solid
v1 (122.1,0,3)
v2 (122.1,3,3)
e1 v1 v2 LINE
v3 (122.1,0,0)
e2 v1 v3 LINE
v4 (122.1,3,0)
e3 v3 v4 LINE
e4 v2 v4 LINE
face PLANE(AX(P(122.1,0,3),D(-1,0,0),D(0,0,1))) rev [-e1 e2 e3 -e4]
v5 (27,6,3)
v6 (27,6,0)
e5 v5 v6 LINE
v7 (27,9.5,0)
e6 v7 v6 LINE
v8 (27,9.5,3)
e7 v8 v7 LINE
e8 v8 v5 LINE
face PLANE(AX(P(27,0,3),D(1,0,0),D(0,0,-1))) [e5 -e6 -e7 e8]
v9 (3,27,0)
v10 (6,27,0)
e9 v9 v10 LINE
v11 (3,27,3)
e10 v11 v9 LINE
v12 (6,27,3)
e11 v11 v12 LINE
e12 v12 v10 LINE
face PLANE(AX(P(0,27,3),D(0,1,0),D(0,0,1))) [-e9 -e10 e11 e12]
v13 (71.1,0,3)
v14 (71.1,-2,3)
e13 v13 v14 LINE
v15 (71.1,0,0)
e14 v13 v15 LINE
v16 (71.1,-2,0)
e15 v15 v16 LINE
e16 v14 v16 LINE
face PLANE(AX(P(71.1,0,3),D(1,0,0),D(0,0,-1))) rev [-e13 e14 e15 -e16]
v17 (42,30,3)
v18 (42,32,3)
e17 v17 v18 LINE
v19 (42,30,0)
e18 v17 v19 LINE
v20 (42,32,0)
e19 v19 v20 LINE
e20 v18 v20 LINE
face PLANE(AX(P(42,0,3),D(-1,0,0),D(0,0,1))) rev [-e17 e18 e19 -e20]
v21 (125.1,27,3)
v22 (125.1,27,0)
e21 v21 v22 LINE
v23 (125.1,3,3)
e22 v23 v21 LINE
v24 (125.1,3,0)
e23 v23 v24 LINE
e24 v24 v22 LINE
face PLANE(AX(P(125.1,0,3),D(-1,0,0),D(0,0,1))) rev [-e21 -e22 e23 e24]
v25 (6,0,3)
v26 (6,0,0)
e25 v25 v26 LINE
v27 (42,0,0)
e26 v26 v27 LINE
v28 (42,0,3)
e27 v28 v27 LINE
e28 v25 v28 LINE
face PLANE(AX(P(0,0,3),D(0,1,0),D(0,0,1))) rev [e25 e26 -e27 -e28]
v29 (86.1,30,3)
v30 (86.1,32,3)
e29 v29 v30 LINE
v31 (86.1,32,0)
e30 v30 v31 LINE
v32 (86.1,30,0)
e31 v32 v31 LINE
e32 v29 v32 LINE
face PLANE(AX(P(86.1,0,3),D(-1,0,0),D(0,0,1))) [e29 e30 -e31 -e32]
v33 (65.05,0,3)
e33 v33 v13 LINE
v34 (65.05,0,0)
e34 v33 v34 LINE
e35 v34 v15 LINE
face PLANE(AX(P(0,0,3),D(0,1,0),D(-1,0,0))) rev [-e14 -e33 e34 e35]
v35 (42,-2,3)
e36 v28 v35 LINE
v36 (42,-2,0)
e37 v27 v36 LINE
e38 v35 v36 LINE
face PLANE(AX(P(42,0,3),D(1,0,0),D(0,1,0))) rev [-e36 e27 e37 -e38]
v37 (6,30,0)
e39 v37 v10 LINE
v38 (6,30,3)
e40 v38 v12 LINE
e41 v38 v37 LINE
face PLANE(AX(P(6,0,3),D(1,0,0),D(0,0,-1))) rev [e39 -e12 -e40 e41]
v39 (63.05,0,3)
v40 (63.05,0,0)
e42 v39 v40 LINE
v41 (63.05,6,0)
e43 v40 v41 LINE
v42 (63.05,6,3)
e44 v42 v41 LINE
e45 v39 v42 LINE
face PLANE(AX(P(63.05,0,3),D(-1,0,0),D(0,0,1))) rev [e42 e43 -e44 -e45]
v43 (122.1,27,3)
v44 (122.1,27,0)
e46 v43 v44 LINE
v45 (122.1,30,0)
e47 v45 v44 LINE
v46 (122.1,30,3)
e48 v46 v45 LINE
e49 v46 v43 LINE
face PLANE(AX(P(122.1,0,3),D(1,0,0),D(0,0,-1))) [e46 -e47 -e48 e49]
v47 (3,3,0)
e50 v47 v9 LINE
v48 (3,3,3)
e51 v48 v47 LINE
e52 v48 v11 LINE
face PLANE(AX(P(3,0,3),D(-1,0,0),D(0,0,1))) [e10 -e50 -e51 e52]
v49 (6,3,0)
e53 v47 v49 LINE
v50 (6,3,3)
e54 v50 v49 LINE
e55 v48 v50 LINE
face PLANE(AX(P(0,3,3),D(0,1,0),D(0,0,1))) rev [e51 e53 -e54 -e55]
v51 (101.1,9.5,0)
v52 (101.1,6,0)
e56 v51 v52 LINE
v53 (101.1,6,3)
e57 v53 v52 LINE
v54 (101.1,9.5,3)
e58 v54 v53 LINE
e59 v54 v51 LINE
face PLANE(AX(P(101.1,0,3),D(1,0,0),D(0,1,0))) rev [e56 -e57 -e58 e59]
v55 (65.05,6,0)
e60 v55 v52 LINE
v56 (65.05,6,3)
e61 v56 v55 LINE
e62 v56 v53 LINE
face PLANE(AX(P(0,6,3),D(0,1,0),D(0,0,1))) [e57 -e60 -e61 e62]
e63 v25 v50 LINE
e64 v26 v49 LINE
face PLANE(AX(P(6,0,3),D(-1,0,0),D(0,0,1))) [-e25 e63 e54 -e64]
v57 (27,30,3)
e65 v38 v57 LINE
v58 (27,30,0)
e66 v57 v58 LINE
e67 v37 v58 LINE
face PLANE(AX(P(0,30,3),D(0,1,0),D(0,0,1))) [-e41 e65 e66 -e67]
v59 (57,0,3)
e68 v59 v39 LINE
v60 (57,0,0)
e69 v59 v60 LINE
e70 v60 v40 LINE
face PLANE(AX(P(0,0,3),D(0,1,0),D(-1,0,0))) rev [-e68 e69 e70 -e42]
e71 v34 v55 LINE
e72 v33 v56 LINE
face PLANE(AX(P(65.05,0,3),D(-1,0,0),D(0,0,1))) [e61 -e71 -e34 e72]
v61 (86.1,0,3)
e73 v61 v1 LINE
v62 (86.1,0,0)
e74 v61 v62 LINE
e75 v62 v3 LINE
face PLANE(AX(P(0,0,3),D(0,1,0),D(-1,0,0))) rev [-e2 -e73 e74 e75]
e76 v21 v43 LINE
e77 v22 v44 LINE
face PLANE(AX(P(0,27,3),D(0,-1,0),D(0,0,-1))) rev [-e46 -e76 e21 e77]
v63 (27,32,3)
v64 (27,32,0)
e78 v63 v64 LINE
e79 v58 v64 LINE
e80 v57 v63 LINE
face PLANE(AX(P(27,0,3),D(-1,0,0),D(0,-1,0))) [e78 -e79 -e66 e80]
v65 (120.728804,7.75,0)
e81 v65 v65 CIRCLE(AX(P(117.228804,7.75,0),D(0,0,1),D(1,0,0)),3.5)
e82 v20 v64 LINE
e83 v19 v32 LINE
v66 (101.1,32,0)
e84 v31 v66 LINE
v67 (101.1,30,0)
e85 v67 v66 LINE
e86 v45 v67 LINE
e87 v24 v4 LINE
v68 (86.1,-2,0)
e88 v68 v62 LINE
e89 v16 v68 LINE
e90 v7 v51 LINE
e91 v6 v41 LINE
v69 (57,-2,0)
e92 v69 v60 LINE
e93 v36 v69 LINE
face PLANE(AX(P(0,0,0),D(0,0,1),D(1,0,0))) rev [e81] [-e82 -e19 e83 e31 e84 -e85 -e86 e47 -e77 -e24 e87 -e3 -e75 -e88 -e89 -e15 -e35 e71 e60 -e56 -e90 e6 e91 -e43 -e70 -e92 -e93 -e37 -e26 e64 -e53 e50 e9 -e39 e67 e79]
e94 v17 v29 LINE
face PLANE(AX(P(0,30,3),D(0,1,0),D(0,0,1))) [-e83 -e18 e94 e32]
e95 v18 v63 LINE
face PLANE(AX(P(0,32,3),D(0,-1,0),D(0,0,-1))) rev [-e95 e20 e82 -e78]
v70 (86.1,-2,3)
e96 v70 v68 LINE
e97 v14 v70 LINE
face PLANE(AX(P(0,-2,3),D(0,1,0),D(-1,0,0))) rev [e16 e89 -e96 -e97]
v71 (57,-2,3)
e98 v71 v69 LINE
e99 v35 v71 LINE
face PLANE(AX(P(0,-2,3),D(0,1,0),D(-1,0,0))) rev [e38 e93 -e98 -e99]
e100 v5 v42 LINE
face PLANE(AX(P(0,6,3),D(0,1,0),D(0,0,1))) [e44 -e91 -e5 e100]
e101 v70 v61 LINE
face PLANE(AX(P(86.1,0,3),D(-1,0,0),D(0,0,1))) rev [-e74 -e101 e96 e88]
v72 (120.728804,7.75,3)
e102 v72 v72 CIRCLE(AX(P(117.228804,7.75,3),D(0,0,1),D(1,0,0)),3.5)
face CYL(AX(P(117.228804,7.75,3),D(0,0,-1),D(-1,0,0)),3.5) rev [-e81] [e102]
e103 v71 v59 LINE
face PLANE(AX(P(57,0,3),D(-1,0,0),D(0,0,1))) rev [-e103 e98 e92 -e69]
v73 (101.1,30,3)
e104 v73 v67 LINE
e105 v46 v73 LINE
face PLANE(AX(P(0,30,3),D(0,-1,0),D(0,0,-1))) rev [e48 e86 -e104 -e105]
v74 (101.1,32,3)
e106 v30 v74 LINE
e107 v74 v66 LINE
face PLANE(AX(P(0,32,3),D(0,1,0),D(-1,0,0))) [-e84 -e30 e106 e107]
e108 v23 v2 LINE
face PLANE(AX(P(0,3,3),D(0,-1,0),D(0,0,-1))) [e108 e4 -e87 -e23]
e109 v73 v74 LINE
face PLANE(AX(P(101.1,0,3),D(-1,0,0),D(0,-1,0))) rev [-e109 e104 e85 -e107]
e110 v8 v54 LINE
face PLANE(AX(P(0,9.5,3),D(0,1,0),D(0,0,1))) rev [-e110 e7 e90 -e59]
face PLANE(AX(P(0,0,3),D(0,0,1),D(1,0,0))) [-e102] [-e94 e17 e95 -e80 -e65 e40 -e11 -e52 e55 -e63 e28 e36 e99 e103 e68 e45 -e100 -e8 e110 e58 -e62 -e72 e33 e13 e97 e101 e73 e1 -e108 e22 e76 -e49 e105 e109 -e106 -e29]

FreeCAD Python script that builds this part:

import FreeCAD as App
import Part
import Sketcher

V = App.Vector

doc = App.newDocument("Part")
params = doc.addObject("Spreadsheet::Sheet", "Params")
for row, (alias, value) in enumerate([
    ("sketch1_diameter", "7 mm"),
    ("sketch1_width", "36 mm"),
    ("sketch1_width2", "15 mm"),
    ("sketch1_width3", "3 mm"),
    ("sketch1_height", "2 mm"),
    ("pad1_length", "3 mm"),
], start=1):
    params.set(f"A{row}", alias)
    params.set(f"B{row}", "=" + value)
    params.setAlias(f"B{row}", alias)

body = doc.addObject("PartDesign::Body", "Body")

# Sketch on XY plane
sketch1 = body.newObject("Sketcher::SketchObject", "Sketch")
sketch1.AttachmentSupport = (doc.getObject("XY_Plane"), [""])
sketch1.MapMode = "FlatFace"
sketch1.addGeometry([
    Part.LineSegment(V(6, 3, 0), V(6, 0, 0)),  # 0
    Part.LineSegment(V(6, 0, 0), V(42, 0, 0)),  # 1
    Part.LineSegment(V(42, 0, 0), V(42, -2, 0)),  # 2
    Part.LineSegment(V(42, -2, 0), V(57, -2, 0)),  # 3
    Part.LineSegment(V(57, -2, 0), V(57, 0, 0)),  # 4
    Part.LineSegment(V(57, 0, 0), V(63, 0, 0)),  # 5
    Part.LineSegment(V(63, 0, 0), V(63, 6, 0)),  # 6
    Part.LineSegment(V(63, 6, 0), V(27, 6, 0)),  # 7
    Part.LineSegment(V(27, 6, 0), V(27, 9.5, 0)),  # 8
    Part.LineSegment(V(27, 9.5, 0), V(101.1, 9.5, 0)),  # 9
    Part.LineSegment(V(101.1, 9.5, 0), V(101.1, 6, 0)),  # 10
    Part.LineSegment(V(101.1, 6, 0), V(65, 6, 0)),  # 11
    Part.LineSegment(V(65, 6, 0), V(65, 0, 0)),  # 12
    Part.LineSegment(V(65, 0, 0), V(71.1, 0, 0)),  # 13
    Part.LineSegment(V(71.1, 0, 0), V(71.1, -2, 0)),  # 14
    Part.LineSegment(V(71.1, -2, 0), V(86.1, -2, 0)),  # 15
    Part.LineSegment(V(86.1, -2, 0), V(86.1, 0, 0)),  # 16
    Part.LineSegment(V(86.1, 0, 0), V(122.1, 0, 0)),  # 17
    Part.LineSegment(V(122.1, 0, 0), V(122.1, 3, 0)),  # 18
    Part.LineSegment(V(122.1, 3, 0), V(125.1, 3, 0)),  # 19
    Part.LineSegment(V(125.1, 3, 0), V(125.1, 27, 0)),  # 20
    Part.LineSegment(V(125.1, 27, 0), V(122.1, 27, 0)),  # 21
    Part.LineSegment(V(122.1, 27, 0), V(122.1, 30, 0)),  # 22
    Part.LineSegment(V(122.1, 30, 0), V(101.1, 30, 0)),  # 23
    Part.LineSegment(V(101.1, 30, 0), V(101.1, 32, 0)),  # 24
    Part.LineSegment(V(101.1, 32, 0), V(86.1, 32, 0)),  # 25
    Part.LineSegment(V(86.1, 32, 0), V(86.1, 30, 0)),  # 26
    Part.LineSegment(V(86.1, 30, 0), V(42, 30, 0)),  # 27
    Part.LineSegment(V(42, 30, 0), V(42, 32, 0)),  # 28
    Part.LineSegment(V(42, 32, 0), V(27, 32, 0)),  # 29
    Part.LineSegment(V(27, 32, 0), V(27, 30, 0)),  # 30
    Part.LineSegment(V(27, 30, 0), V(6, 30, 0)),  # 31
    Part.LineSegment(V(6, 30, 0), V(6, 27, 0)),  # 32
    Part.LineSegment(V(6, 27, 0), V(3, 27, 0)),  # 33
    Part.LineSegment(V(3, 27, 0), V(3, 3, 0)),  # 34
    Part.LineSegment(V(3, 3, 0), V(6, 3, 0)),  # 35
    Part.Circle(V(117.2, 7.8, 0), V(0, 0, 1), 3.5),  # 36
], False)
sketch1.addConstraint([
    Sketcher.Constraint("Coincident", 0, 2, 1, 1),
    Sketcher.Constraint("Coincident", 1, 2, 2, 1),
    Sketcher.Constraint("Coincident", 2, 2, 3, 1),
    Sketcher.Constraint("Coincident", 3, 2, 4, 1),
    Sketcher.Constraint("Coincident", 4, 2, 5, 1),
    Sketcher.Constraint("Coincident", 5, 2, 6, 1),
    Sketcher.Constraint("Coincident", 6, 2, 7, 1),
    Sketcher.Constraint("Coincident", 7, 2, 8, 1),
    Sketcher.Constraint("Coincident", 8, 2, 9, 1),
    Sketcher.Constraint("Coincident", 9, 2, 10, 1),
    Sketcher.Constraint("Coincident", 10, 2, 11, 1),
    Sketcher.Constraint("Coincident", 11, 2, 12, 1),
    Sketcher.Constraint("Coincident", 12, 2, 13, 1),
    Sketcher.Constraint("Coincident", 13, 2, 14, 1),
    Sketcher.Constraint("Coincident", 14, 2, 15, 1),
    Sketcher.Constraint("Coincident", 15, 2, 16, 1),
    Sketcher.Constraint("Coincident", 16, 2, 17, 1),
    Sketcher.Constraint("Coincident", 17, 2, 18, 1),
    Sketcher.Constraint("Coincident", 18, 2, 19, 1),
    Sketcher.Constraint("Coincident", 19, 2, 20, 1),
    Sketcher.Constraint("Coincident", 20, 2, 21, 1),
    Sketcher.Constraint("Coincident", 21, 2, 22, 1),
    Sketcher.Constraint("Coincident", 22, 2, 23, 1),
    Sketcher.Constraint("Coincident", 23, 2, 24, 1),
    Sketcher.Constraint("Coincident", 24, 2, 25, 1),
    Sketcher.Constraint("Coincident", 25, 2, 26, 1),
    Sketcher.Constraint("Coincident", 26, 2, 27, 1),
    Sketcher.Constraint("Coincident", 27, 2, 28, 1),
    Sketcher.Constraint("Coincident", 28, 2, 29, 1),
    Sketcher.Constraint("Coincident", 29, 2, 30, 1),
    Sketcher.Constraint("Coincident", 30, 2, 31, 1),
    Sketcher.Constraint("Coincident", 31, 2, 32, 1),
    Sketcher.Constraint("Coincident", 32, 2, 33, 1),
    Sketcher.Constraint("Coincident", 33, 2, 34, 1),
    Sketcher.Constraint("Coincident", 34, 2, 35, 1),
    Sketcher.Constraint("Coincident", 35, 2, 0, 1),
    Sketcher.Constraint("Vertical", 0),
    Sketcher.Constraint("Horizontal", 1),
    Sketcher.Constraint("Vertical", 2),
    Sketcher.Constraint("Horizontal", 3),
    Sketcher.Constraint("Vertical", 4),
    Sketcher.Constraint("Horizontal", 5),
    Sketcher.Constraint("Vertical", 6),
    Sketcher.Constraint("Horizontal", 7),
    Sketcher.Constraint("Vertical", 8),
    Sketcher.Constraint("Horizontal", 9),
    Sketcher.Constraint("Vertical", 10),
    Sketcher.Constraint("Horizontal", 11),
    Sketcher.Constraint("Vertical", 12),
    Sketcher.Constraint("Horizontal", 13),
    Sketcher.Constraint("Vertical", 14),
    Sketcher.Constraint("Horizontal", 15),
    Sketcher.Constraint("Vertical", 16),
    Sketcher.Constraint("Horizontal", 17),
    Sketcher.Constraint("Vertical", 18),
    Sketcher.Constraint("Horizontal", 19),
    Sketcher.Constraint("Vertical", 20),
    Sketcher.Constraint("Horizontal", 21),
    Sketcher.Constraint("Vertical", 22),
    Sketcher.Constraint("Horizontal", 23),
    Sketcher.Constraint("Vertical", 24),
    Sketcher.Constraint("Horizontal", 25),
    Sketcher.Constraint("Vertical", 26),
    Sketcher.Constraint("Horizontal", 27),
    Sketcher.Constraint("Vertical", 28),
    Sketcher.Constraint("Horizontal", 29),
    Sketcher.Constraint("Vertical", 30),
    Sketcher.Constraint("Horizontal", 31),
    Sketcher.Constraint("Vertical", 32),
    Sketcher.Constraint("Horizontal", 33),
    Sketcher.Constraint("Vertical", 34),
    Sketcher.Constraint("Horizontal", 35),
    Sketcher.Constraint("PointOnObject", 0, 2, -1),
    Sketcher.Constraint("PointOnObject", 4, 2, -1),
    Sketcher.Constraint("PointOnObject", 12, 2, -1),
    Sketcher.Constraint("PointOnObject", 16, 2, -1),
    Sketcher.Constraint("Horizontal", 7, 2, 10, 2),
    Sketcher.Constraint("Horizontal", 3, 2, 14, 2),
    Sketcher.Constraint("Horizontal", 23, 2, 26, 2),
    Sketcher.Constraint("Horizontal", 25, 2, 28, 2),
    Sketcher.Constraint("Horizontal", 27, 2, 30, 2),
    Sketcher.Constraint("Horizontal", 21, 2, 32, 2),
    Sketcher.Constraint("Horizontal", 19, 2, 34, 2),
    Sketcher.Constraint("Vertical", 18, 2, 21, 2),
    Sketcher.Constraint("Vertical", 10, 2, 23, 2),
    Sketcher.Constraint("Vertical", 16, 2, 25, 2),
    Sketcher.Constraint("Vertical", 2, 2, 27, 2),
    Sketcher.Constraint("Vertical", 8, 2, 29, 2),
    Sketcher.Constraint("Vertical", 0, 2, 31, 2),
    Sketcher.Constraint("Equal", 7, 11),
    Sketcher.Constraint("Equal", 5, 13),
    Sketcher.Constraint("Equal", 3, 15),
    Sketcher.Constraint("Equal", 1, 17),
    Sketcher.Constraint("Equal", 15, 25),
    Sketcher.Constraint("Equal", 21, 33),
    Sketcher.Constraint("Equal", 35, 0),
    Sketcher.Constraint("Equal", 18, 22),
    Sketcher.Constraint("Equal", 16, 24),
    Sketcher.Constraint("Diameter", 36, 7.0),
    Sketcher.Constraint("DistanceX", 1, 1, 1, 2, 36.0),
    Sketcher.Constraint("DistanceX", 3, 1, 3, 2, 15.0),
    Sketcher.Constraint("DistanceX", 19, 1, 19, 2, 3.0),
    Sketcher.Constraint("DistanceY", 2, 2, 2, 1, 2.0),
    Sketcher.Constraint("DistanceY", 6, 1, 6, 2, 6.0),
    Sketcher.Constraint("DistanceY", 20, 1, 20, 2, 24.0),
    Sketcher.Constraint("DistanceX", 9, 1, 9, 2, 74.1),
    Sketcher.Constraint("DistanceY", 8, 1, 8, 2, 3.5),
    Sketcher.Constraint("DistanceX", -1, 1, 0, 2, 6.0),
    Sketcher.Constraint("DistanceX", 6, 2, 11, 2, 2.0),
    Sketcher.Constraint("DistanceY", -1, 1, 36, 3, 7.75),
    Sketcher.Constraint("DistanceX", -1, 1, 36, 3, 117.228804),
])
sketch1.setExpression("Constraints[98]", "Params.sketch1_diameter")
sketch1.setExpression("Constraints[99]", "Params.sketch1_width")
sketch1.setExpression("Constraints[100]", "Params.sketch1_width2")
sketch1.setExpression("Constraints[101]", "Params.sketch1_width3")
sketch1.setExpression("Constraints[102]", "Params.sketch1_height")
pad1 = body.newObject("PartDesign::Pad", "Pad")
pad1.Profile = sketch1
pad1.setExpression("Length", "Params.pad1_length")

doc.recompute()
